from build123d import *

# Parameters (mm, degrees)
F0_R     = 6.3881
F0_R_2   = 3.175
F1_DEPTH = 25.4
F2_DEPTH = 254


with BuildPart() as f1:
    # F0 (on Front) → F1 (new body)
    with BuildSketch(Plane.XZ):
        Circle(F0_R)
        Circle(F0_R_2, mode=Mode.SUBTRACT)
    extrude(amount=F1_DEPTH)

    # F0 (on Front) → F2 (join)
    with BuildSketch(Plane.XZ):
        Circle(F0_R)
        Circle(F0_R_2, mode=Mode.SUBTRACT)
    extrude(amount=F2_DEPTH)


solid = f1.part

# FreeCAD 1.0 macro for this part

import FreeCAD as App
import Part
import Sketcher
from FreeCAD import Vector
Q = App.Units.Quantity

doc = App.newDocument("Part")
body = doc.addObject("PartDesign::Body", "Body")

# Sketch on XZ plane
sketch1 = body.newObject("Sketcher::SketchObject", "Sketch")
sketch1.AttachmentSupport = (doc.getObject("XZ_Plane"), [""])
sketch1.MapMode = "FlatFace"
sketch1.addGeometry([
    Part.Circle(Vector(0, 0, 0), Vector(0, 0, 1), 6.3881),
    Part.Circle(Vector(0, 0, 0), Vector(0, 0, 1), 3.175),
], False)
sketch1.addConstraint([
    Sketcher.Constraint("Coincident", 0, 3, -1, 1),
    Sketcher.Constraint("Coincident", 1, 3, -1, 1),
    Sketcher.Constraint("Diameter", 1, Q("0.25 in")),
    Sketcher.Constraint("Diameter", 0, Q("0.503 in")),
])
pad1 = body.newObject("PartDesign::Pad", "Pad")
pad1.Profile = sketch1
pad1.Length = Q("1 in")

# Sketch on XZ plane
sketch2 = body.newObject("Sketcher::SketchObject", "Sketch001")
sketch2.AttachmentSupport = (doc.getObject("XZ_Plane"), [""])
sketch2.MapMode = "FlatFace"
sketch2.addGeometry([
    Part.Circle(Vector(0, 0, 0), Vector(0, 0, 1), 6.3881),
    Part.Circle(Vector(0, 0, 0), Vector(0, 0, 1), 3.175),
], False)
sketch2.addConstraint([
    Sketcher.Constraint("Coincident", 0, 3, -1, 1),
    Sketcher.Constraint("Coincident", 1, 3, -1, 1),
    Sketcher.Constraint("Diameter", 1, Q("0.25 in")),
    Sketcher.Constraint("Diameter", 0, Q("0.503 in")),
])
pad2 = body.newObject("PartDesign::Pad", "Pad001")
pad2.Profile = sketch2
pad2.Length = Q("10 in")

doc.recompute()
